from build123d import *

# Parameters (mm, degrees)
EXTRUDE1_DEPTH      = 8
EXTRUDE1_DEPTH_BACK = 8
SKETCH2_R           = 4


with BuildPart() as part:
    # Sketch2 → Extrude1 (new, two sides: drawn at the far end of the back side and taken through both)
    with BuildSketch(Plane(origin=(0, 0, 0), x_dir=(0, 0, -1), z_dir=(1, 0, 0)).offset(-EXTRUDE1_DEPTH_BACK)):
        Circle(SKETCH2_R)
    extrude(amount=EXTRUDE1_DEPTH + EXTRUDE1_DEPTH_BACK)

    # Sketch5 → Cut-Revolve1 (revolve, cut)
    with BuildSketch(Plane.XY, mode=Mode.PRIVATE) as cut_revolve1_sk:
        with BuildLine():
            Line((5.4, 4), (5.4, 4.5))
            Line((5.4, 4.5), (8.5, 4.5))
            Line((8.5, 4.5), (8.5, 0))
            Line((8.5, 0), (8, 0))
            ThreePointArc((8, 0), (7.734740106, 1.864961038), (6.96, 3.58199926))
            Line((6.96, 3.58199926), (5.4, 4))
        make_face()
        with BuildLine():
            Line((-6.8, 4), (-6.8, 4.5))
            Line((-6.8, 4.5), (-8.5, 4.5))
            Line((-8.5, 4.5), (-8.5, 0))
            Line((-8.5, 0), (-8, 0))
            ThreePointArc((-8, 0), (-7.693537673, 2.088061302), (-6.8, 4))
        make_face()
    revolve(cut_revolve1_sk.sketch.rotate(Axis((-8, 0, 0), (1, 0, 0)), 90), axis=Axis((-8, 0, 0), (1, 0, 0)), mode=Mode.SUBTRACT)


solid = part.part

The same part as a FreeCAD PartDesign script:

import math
import FreeCAD as App
import Part
import Sketcher
from FreeCAD import Vector
Q = App.Units.Quantity

doc = App.newDocument("Part")
params = doc.addObject("Spreadsheet::Sheet", "Params")
for row, (alias, value) in enumerate([
    ("sketch1_diameter", "8 mm"),
    ("pad1_length", "8 mm"),
    ("pad1_length2", "8 mm"),
    ("sketch2_width", "0.5 mm"),
    ("sketch2_width2", "3.1 mm"),
    ("sketch2_width3", "1.7 mm"),
    ("sketch2_height", "4.5 mm"),
    ("groove_angle", "360 deg"),
], start=1):
    params.set(f"A{row}", alias)
    params.set(f"B{row}", "=" + value)
    params.setAlias(f"B{row}", alias)

body = doc.addObject("PartDesign::Body", "Body")

# Sketch on YZ plane
sketch1 = doc.addObject("Sketcher::SketchObject", "Sketch")
body.addObject(sketch1)
sketch1.AttachmentSupport = (doc.YZ_Plane, [""])
sketch1.MapMode = "FlatFace"
sketch1.addGeometry(Part.Circle(Vector(0, 0, 0), Vector(0, 0, 1), 4), False)
sketch1.addConstraint(Sketcher.Constraint("Coincident", 0, 3, -1, 1))
sketch1.addConstraint(Sketcher.Constraint("Diameter", 0, 8.0))
sketch1.setExpression("Constraints[1]", "Params.sketch1_diameter")
pad1 = doc.addObject("PartDesign::Pad", "Pad")
body.addObject(pad1)
pad1.Profile = sketch1
pad1.Type = "TwoLengths"
pad1.setExpression("Length", "Params.pad1_length")
pad1.setExpression("Length2", "Params.pad1_length2")

# Sketch on XY plane
sketch2 = doc.addObject("Sketcher::SketchObject", "Sketch001")
body.addObject(sketch2)
sketch2.AttachmentSupport = (doc.XY_Plane, [""])
sketch2.MapMode = "FlatFace"
sketch2.addGeometry(Part.LineSegment(Vector(5.4, 4.5, 0), Vector(5.4, 4, 0)), False)
sketch2.addGeometry(Part.LineSegment(Vector(5.4, 4, 0), Vector(6.96, 3.581999, 0)), False)
sketch2.addGeometry(Part.ArcOfCircle(Part.Circle(Vector(1.311385, 0, 0), Vector(0, 0, 1), 6.688615), math.radians(0), math.radians(32.380322)), False)
sketch2.addGeometry(Part.LineSegment(Vector(8, 0, 0), Vector(8.5, 0, 0)), False)
sketch2.addGeometry(Part.LineSegment(Vector(8.5, 0, 0), Vector(8.5, 4.5, 0)), False)
sketch2.addGeometry(Part.LineSegment(Vector(8.5, 4.5, 0), Vector(5.4, 4.5, 0)), False)
sketch2.addGeometry(Part.LineSegment(Vector(-6.8, 4, 0), Vector(-6.8, 4.5, 0)), False)
sketch2.addGeometry(Part.LineSegment(Vector(-6.8, 4.5, 0), Vector(-8.5, 4.5, 0)), False)
sketch2.addGeometry(Part.LineSegment(Vector(-8.5, 4.5, 0), Vector(-8.5, 0, 0)), False)
sketch2.addGeometry(Part.LineSegment(Vector(-8.5, 0, 0), Vector(-8, 0, 0)), False)
sketch2.addGeometry(Part.ArcOfCircle(Part.Circle(Vector(-0.733333, 0, 0), Vector(0, 0, 1), 7.266667), math.radians(146.601512), math.radians(180)), False)
sketch2.addConstraint(Sketcher.Constraint("Coincident", 0, 2, 1, 1))
sketch2.addConstraint(Sketcher.Constraint("Coincident", 1, 2, 2, 2))
sketch2.addConstraint(Sketcher.Constraint("Coincident", 2, 1, 3, 1))
sketch2.addConstraint(Sketcher.Constraint("Coincident", 3, 2, 4, 1))
sketch2.addConstraint(Sketcher.Constraint("Coincident", 4, 2, 5, 1))
sketch2.addConstraint(Sketcher.Constraint("Coincident", 5, 2, 0, 1))
sketch2.addConstraint(Sketcher.Constraint("Coincident", 6, 2, 7, 1))
sketch2.addConstraint(Sketcher.Constraint("Coincident", 7, 2, 8, 1))
sketch2.addConstraint(Sketcher.Constraint("Coincident", 8, 2, 9, 1))
sketch2.addConstraint(Sketcher.Constraint("Coincident", 9, 2, 10, 2))
sketch2.addConstraint(Sketcher.Constraint("Coincident", 10, 1, 6, 1))
sketch2.addConstraint(Sketcher.Constraint("Vertical", 0))
sketch2.addConstraint(Sketcher.Constraint("Horizontal", 3))
sketch2.addConstraint(Sketcher.Constraint("Vertical", 4))
sketch2.addConstraint(Sketcher.Constraint("Horizontal", 5))
sketch2.addConstraint(Sketcher.Constraint("Vertical", 6))
sketch2.addConstraint(Sketcher.Constraint("Horizontal", 7))
sketch2.addConstraint(Sketcher.Constraint("Vertical", 8))
sketch2.addConstraint(Sketcher.Constraint("Horizontal", 9))
sketch2.addConstraint(Sketcher.Constraint("Symmetric", 3, 2, 8, 2, -1, 1))
sketch2.addConstraint(Sketcher.Constraint("Symmetric", 2, 1, 9, 2, -2))
sketch2.addConstraint(Sketcher.Constraint("PointOnObject", 2, 3, -1))
sketch2.addConstraint(Sketcher.Constraint("PointOnObject", 10, 3, -1))
sketch2.addConstraint(Sketcher.Constraint("Horizontal", 5, 2, 6, 2))
sketch2.addConstraint(Sketcher.Constraint("Horizontal", 0, 2, 10, 1))
sketch2.addConstraint(Sketcher.Constraint("Equal", 9, 0))
sketch2.addConstraint(Sketcher.Constraint("Angle", 1, Q("-15 deg")))
sketch2.addConstraint(Sketcher.Constraint("DistanceX", 3, 1, 3, 2, 0.5))
sketch2.addConstraint(Sketcher.Constraint("DistanceX", 5, 2, 5, 1, 3.1))
sketch2.addConstraint(Sketcher.Constraint("DistanceX", 7, 2, 7, 1, 1.7))
sketch2.addConstraint(Sketcher.Constraint("DistanceY", 4, 1, 4, 2, 4.5))
sketch2.addConstraint(Sketcher.Constraint("DistanceX", -1, 1, 2, 1, 8.0))
sketch2.addConstraint(Sketcher.Constraint("DistanceX", -1, 1, 1, 2, 6.96))
sketch2.setExpression("Constraints[27]", "Params.sketch2_width")
sketch2.setExpression("Constraints[28]", "Params.sketch2_width2")
sketch2.setExpression("Constraints[29]", "Params.sketch2_width3")
sketch2.setExpression("Constraints[30]", "Params.sketch2_height")
groove = doc.addObject("PartDesign::Groove", "Groove")
body.addObject(groove)
groove.Profile = sketch2
groove.ReferenceAxis = (sketch2, ["H_Axis"])
groove.setExpression("Angle", "Params.groove_angle")

doc.recompute()
